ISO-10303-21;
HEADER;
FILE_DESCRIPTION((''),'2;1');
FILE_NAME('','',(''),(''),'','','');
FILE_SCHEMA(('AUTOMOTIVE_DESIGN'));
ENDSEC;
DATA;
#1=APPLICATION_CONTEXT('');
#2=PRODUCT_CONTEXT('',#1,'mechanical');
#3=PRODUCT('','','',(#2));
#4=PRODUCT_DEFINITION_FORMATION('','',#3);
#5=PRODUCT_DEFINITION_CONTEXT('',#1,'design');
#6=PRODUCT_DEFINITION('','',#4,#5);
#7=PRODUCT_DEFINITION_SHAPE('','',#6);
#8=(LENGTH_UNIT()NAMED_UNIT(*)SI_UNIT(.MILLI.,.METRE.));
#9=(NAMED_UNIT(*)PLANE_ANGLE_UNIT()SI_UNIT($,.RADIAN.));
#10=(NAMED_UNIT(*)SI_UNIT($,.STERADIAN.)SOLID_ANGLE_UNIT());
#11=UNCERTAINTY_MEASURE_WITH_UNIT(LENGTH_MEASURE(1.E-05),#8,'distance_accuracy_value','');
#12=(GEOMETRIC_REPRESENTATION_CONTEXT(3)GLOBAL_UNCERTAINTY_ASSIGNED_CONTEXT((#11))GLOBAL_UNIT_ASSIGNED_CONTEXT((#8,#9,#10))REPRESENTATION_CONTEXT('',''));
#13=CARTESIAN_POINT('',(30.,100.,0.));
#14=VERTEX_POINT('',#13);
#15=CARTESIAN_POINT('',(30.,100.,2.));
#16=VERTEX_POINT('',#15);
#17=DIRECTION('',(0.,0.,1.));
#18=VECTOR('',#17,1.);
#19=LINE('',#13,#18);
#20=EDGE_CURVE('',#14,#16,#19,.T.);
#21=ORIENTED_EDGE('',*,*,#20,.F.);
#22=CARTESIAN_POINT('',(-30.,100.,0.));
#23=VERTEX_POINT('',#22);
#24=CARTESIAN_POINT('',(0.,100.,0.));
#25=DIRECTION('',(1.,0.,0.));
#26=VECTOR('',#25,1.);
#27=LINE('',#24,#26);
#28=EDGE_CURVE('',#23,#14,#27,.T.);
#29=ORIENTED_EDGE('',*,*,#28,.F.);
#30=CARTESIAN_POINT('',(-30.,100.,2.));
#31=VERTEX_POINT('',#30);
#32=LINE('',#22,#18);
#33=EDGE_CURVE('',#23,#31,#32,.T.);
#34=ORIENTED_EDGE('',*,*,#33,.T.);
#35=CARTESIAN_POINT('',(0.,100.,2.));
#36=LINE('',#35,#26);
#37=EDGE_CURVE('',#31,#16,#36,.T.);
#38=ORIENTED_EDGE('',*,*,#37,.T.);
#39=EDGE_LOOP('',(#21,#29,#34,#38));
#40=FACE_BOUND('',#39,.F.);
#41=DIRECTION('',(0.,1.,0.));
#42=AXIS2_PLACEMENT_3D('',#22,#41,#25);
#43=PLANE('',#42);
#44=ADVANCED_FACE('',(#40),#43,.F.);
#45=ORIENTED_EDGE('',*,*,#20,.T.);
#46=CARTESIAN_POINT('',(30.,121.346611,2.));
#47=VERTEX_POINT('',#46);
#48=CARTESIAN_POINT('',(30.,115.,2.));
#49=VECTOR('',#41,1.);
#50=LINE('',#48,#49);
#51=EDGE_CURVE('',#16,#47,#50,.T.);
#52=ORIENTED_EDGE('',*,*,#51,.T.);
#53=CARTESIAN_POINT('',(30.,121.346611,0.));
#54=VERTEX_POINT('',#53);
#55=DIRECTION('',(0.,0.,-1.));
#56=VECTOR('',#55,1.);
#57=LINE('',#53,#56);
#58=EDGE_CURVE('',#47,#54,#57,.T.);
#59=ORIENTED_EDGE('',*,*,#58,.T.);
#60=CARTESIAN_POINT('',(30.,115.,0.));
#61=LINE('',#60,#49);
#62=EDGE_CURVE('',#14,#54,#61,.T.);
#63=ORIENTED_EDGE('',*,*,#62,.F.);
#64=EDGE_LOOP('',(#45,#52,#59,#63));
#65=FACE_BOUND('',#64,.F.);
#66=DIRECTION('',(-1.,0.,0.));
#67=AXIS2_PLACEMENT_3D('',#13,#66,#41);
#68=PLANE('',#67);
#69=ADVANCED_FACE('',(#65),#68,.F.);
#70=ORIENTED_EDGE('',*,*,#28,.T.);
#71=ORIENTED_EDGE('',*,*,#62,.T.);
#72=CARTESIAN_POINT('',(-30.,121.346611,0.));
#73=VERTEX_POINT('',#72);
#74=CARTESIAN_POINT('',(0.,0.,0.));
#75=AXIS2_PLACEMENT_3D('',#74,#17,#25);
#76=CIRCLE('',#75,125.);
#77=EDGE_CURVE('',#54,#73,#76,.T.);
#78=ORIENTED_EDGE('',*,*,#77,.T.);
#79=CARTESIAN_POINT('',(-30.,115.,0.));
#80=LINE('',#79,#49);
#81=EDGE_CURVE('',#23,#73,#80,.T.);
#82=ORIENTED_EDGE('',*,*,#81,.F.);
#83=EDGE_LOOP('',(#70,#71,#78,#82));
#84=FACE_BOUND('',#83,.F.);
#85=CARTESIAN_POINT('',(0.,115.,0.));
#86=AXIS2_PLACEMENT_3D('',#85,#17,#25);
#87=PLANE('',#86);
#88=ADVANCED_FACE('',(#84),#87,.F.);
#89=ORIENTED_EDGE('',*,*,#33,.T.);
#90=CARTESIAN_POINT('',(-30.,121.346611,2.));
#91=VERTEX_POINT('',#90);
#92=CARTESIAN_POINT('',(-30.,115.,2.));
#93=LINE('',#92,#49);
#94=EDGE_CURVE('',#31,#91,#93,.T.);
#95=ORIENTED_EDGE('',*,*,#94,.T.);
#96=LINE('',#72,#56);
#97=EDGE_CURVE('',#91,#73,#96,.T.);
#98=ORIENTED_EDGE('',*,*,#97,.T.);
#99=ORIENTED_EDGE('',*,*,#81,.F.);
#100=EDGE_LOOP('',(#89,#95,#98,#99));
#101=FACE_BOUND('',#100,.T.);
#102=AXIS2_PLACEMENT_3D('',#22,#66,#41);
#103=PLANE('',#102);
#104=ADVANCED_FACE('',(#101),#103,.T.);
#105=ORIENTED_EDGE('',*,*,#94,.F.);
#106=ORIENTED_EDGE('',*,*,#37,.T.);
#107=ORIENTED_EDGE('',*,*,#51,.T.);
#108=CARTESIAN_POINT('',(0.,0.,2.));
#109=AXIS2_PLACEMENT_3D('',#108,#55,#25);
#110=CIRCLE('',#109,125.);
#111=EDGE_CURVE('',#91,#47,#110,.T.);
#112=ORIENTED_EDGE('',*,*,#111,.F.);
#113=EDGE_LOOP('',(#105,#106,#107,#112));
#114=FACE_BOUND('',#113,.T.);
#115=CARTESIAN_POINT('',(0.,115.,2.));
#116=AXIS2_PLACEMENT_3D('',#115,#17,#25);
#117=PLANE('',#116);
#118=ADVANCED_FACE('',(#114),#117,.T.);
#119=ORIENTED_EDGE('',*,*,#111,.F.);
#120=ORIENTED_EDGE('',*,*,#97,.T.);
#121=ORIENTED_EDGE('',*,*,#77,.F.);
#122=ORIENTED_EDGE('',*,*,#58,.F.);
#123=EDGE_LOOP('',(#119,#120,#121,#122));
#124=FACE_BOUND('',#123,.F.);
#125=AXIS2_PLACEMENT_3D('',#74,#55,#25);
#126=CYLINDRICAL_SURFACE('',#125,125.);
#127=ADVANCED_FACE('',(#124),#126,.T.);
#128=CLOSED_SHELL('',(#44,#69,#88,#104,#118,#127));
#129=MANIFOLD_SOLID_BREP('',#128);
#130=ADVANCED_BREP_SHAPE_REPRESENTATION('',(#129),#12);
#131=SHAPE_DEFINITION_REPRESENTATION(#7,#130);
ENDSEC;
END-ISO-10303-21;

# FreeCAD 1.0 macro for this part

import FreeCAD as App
import Part
import Sketcher

V = App.Vector


def add_polygon(sketch, points):
    """Adds a closed chain of lines whose ends are joined by coincident constraints."""
    first, n = sketch.GeometryCount, len(points)
    for a, b in zip(points, points[1:] + points[:1]):
        sketch.addGeometry(Part.LineSegment(App.Vector(*a, 0), App.Vector(*b, 0)), False)
    for i in range(n):
        sketch.addConstraint(Sketcher.Constraint("Coincident", first + i, 2, first + (i + 1) % n, 1))

doc = App.newDocument("Part")
params = doc.addObject("Spreadsheet::Sheet", "Params")
for row, (alias, value) in enumerate([
    ("sketch1_diameter", "250 mm"),
    ("pad1_length", "10 mm"),
    ("sketch2_width", "60 mm"),
    ("sketch2_height", "30 mm"),
    ("pad2_length", "2 mm"),
], start=1):
    params.set(f"A{row}", alias)
    params.set(f"B{row}", "=" + value)
    params.setAlias(f"B{row}", alias)

body = doc.addObject("PartDesign::Body", "Body")

# Sketch on XY plane
sketch1 = body.newObject("Sketcher::SketchObject", "Sketch")
sketch1.AttachmentSupport = (doc.getObject("XY_Plane"), [""])
sketch1.MapMode = "FlatFace"
sketch1.addGeometry(Part.Circle(V(0, 0, 0), V(0, 0, 1), 125), False)
sketch1.addConstraint([
    Sketcher.Constraint("Coincident", 0, 3, -1, 1),
    Sketcher.Constraint("Diameter", 0, 250.0),
])
sketch1.setExpression("Constraints[1]", "Params.sketch1_diameter")
pad1 = body.newObject("PartDesign::Pad", "Pad")
pad1.Profile = sketch1
pad1.setExpression("Length", "Params.pad1_length")
body2 = doc.addObject("PartDesign::Body", "Body001")

# Sketch on XY plane
sketch2 = body2.newObject("Sketcher::SketchObject", "Sketch001")
sketch2.AttachmentSupport = (doc.getObject("XY_Plane001"), [""])
sketch2.MapMode = "FlatFace"
add_polygon(sketch2, [(-30, 130), (-30, 100), (30, 100), (30, 130)])  # lines 0-3
sketch2.addConstraint([
    Sketcher.Constraint("Vertical", 0),
    Sketcher.Constraint("Horizontal", 1),
    Sketcher.Constraint("Vertical", 2),
    Sketcher.Constraint("Horizontal", 3),
    Sketcher.Constraint("DistanceX", 1, 1, 1, 2, 60.0),
    Sketcher.Constraint("DistanceY", 0, 2, 0, 1, 30.0),
    Sketcher.Constraint("DistanceX", 0, 2, -1, 1, 30.0),
    Sketcher.Constraint("DistanceY", -1, 1, 0, 2, 100.0),
])
sketch2.setExpression("Constraints[8]", "Params.sketch2_width")
sketch2.setExpression("Constraints[9]", "Params.sketch2_height")
pad2 = body2.newObject("PartDesign::Pad", "Pad001")
pad2.Profile = sketch2
pad2.setExpression("Length", "Params.pad2_length")
doc.recompute()

boolean = body2.newObject("PartDesign::Boolean", "Boolean")
boolean.Type = "Common"
boolean.addObjects([body])

doc.recompute()
